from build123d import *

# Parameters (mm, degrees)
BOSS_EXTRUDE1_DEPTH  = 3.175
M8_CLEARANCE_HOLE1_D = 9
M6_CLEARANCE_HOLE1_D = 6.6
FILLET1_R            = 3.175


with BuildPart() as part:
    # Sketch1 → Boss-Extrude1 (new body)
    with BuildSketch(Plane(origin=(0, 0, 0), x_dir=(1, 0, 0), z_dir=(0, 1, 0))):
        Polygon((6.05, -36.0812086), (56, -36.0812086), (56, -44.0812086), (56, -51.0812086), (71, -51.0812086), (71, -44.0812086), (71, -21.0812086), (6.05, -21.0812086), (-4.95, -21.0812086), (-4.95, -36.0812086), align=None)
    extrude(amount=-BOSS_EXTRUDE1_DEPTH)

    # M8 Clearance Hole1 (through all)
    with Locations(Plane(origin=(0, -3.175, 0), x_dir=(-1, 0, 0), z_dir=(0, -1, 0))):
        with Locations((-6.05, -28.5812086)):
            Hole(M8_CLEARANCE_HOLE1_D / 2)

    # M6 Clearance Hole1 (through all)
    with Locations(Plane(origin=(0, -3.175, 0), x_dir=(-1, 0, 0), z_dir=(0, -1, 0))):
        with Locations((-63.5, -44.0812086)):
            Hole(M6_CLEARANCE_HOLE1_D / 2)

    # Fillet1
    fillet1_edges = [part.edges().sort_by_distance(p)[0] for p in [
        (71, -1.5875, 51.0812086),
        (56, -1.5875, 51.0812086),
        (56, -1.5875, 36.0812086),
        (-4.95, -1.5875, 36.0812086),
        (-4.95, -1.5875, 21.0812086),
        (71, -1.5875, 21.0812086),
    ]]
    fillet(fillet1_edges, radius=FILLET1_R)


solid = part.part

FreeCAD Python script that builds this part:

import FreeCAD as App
import Part
import Sketcher
from FreeCAD import Vector
Q = App.Units.Quantity


def edges_at(feature, points):
    """Names of the edges that pass closest to the given points."""
    edges = feature.Shape.Edges
    near = lambda p: min(range(len(edges)), key=lambda i: edges[i].distToShape(Part.Vertex(*p))[0])
    return sorted({f"Edge{near(p) + 1}" for p in points})


def add_polygon(sketch, points):
    """Adds a closed chain of lines whose ends are joined by coincident constraints."""
    first, n = sketch.GeometryCount, len(points)
    for a, b in zip(points, points[1:] + points[:1]):
        sketch.addGeometry(Part.LineSegment(App.Vector(*a, 0), App.Vector(*b, 0)), False)
    for i in range(n):
        sketch.addConstraint(Sketcher.Constraint("Coincident", first + i, 2, first + (i + 1) % n, 1))

doc = App.newDocument("Part")
params = doc.addObject("Spreadsheet::Sheet", "Params")
for row, (alias, value) in enumerate([
    ("sketch1_width", "15 mm"),
    ("sketch1_width2", "75.95 mm"),
    ("pad1_length", "3.175 mm"),
    ("sketch2_diameter", "9 mm"),
    ("hole_diameter", "9 mm"),
    ("sketch3_diameter", "6.6 mm"),
    ("hole2_diameter", "6.6 mm"),
    ("fillet_radius", "3.175 mm"),
], start=1):
    params.set(f"A{row}", alias)
    params.set(f"B{row}", "=" + value)
    params.setAlias(f"B{row}", alias)

body = doc.addObject("PartDesign::Body", "Body")

sketch1 = doc.addObject("Sketcher::SketchObject", "Sketch")
body.addObject(sketch1)
sketch1.AttachmentSupport = (doc.XZ_Plane, [""])
sketch1.MapMode = "FlatFace"
add_polygon(sketch1, [(56, 36.081209), (56, 51.081209), (71, 51.081209), (71, 21.081209), (-4.95, 21.081209), (-4.95, 36.081209)])
sketch1.addConstraint(Sketcher.Constraint("Vertical", 0))
sketch1.addConstraint(Sketcher.Constraint("Horizontal", 1))
sketch1.addConstraint(Sketcher.Constraint("Vertical", 2))
sketch1.addConstraint(Sketcher.Constraint("Horizontal", 3))
sketch1.addConstraint(Sketcher.Constraint("Vertical", 4))
sketch1.addConstraint(Sketcher.Constraint("Horizontal", 5))
sketch1.addConstraint(Sketcher.Constraint("Equal", 1, 0))
sketch1.addConstraint(Sketcher.Constraint("Equal", 0, 4))
sketch1.addConstraint(Sketcher.Constraint("DistanceX", 1, 1, 1, 2, Q("15 mm")))
sketch1.addConstraint(Sketcher.Constraint("DistanceX", -1, 1, 0, 2, Q("56 mm")))
sketch1.addConstraint(Sketcher.Constraint("DistanceX", 3, 2, 3, 1, Q("75.95 mm")))
sketch1.addConstraint(Sketcher.Constraint("DistanceY", -1, 1, 0, 2, Q("51.081209 mm")))
sketch1.setExpression("Constraints[14]", "Params.sketch1_width")
sketch1.setExpression("Constraints[16]", "Params.sketch1_width2")
pad1 = doc.addObject("PartDesign::Pad", "Pad")
body.addObject(pad1)
pad1.Profile = sketch1
pad1.setExpression("Length", "Params.pad1_length")

sketch2 = doc.addObject("Sketcher::SketchObject", "Sketch001")
body.addObject(sketch2)
sketch2.AttachmentSupport = (doc.XZ_Plane, [""])
sketch2.MapMode = "FlatFace"
sketch2.AttachmentOffset = App.Placement(Vector(0, 0, 3.175), App.Rotation())
sketch2.addGeometry(Part.Circle(Vector(6.05, 28.581209, 0), Vector(0, 0, 1), 4.5), False)
sketch2.addConstraint(Sketcher.Constraint("Diameter", 0, Q("9 mm")))
sketch2.addConstraint(Sketcher.Constraint("DistanceX", -1, 1, 0, 3, Q("6.05 mm")))
sketch2.addConstraint(Sketcher.Constraint("DistanceY", -1, 1, 0, 3, Q("28.581209 mm")))
sketch2.setExpression("Constraints[0]", "Params.sketch2_diameter")
doc.recompute()
hole = doc.addObject("PartDesign::Hole", "Hole")
body.addObject(hole)
hole.Profile = sketch2
hole.ThreadType = "None"
hole.setExpression("Diameter", "Params.hole_diameter")
hole.DepthType = "ThroughAll"

sketch3 = doc.addObject("Sketcher::SketchObject", "Sketch002")
body.addObject(sketch3)
sketch3.AttachmentSupport = (doc.XZ_Plane, [""])
sketch3.MapMode = "FlatFace"
sketch3.AttachmentOffset = App.Placement(Vector(0, 0, 3.175), App.Rotation())
sketch3.addGeometry(Part.Circle(Vector(63.5, 44.081209, 0), Vector(0, 0, 1), 3.3), False)
sketch3.addConstraint(Sketcher.Constraint("Diameter", 0, Q("6.6 mm")))
sketch3.addConstraint(Sketcher.Constraint("DistanceX", -1, 1, 0, 3, Q("63.5 mm")))
sketch3.addConstraint(Sketcher.Constraint("DistanceY", -1, 1, 0, 3, Q("44.081209 mm")))
sketch3.setExpression("Constraints[0]", "Params.sketch3_diameter")
doc.recompute()
hole2 = doc.addObject("PartDesign::Hole", "Hole001")
body.addObject(hole2)
hole2.Profile = sketch3
hole2.ThreadType = "None"
hole2.setExpression("Diameter", "Params.hole2_diameter")
hole2.DepthType = "ThroughAll"
doc.recompute()

fillet = doc.addObject("PartDesign::Fillet", "Fillet")
body.addObject(fillet)
fillet.Base = (hole2, edges_at(hole2, [
    (71, -1.587, 51.081),
    (56, -1.587, 51.081),
    (56, -1.587, 36.081),
    (-4.95, -1.587, 36.081),
    (-4.95, -1.587, 21.081),
    (71, -1.587, 21.081),
]))
fillet.setExpression("Radius", "Params.fillet_radius")

doc.recompute()
